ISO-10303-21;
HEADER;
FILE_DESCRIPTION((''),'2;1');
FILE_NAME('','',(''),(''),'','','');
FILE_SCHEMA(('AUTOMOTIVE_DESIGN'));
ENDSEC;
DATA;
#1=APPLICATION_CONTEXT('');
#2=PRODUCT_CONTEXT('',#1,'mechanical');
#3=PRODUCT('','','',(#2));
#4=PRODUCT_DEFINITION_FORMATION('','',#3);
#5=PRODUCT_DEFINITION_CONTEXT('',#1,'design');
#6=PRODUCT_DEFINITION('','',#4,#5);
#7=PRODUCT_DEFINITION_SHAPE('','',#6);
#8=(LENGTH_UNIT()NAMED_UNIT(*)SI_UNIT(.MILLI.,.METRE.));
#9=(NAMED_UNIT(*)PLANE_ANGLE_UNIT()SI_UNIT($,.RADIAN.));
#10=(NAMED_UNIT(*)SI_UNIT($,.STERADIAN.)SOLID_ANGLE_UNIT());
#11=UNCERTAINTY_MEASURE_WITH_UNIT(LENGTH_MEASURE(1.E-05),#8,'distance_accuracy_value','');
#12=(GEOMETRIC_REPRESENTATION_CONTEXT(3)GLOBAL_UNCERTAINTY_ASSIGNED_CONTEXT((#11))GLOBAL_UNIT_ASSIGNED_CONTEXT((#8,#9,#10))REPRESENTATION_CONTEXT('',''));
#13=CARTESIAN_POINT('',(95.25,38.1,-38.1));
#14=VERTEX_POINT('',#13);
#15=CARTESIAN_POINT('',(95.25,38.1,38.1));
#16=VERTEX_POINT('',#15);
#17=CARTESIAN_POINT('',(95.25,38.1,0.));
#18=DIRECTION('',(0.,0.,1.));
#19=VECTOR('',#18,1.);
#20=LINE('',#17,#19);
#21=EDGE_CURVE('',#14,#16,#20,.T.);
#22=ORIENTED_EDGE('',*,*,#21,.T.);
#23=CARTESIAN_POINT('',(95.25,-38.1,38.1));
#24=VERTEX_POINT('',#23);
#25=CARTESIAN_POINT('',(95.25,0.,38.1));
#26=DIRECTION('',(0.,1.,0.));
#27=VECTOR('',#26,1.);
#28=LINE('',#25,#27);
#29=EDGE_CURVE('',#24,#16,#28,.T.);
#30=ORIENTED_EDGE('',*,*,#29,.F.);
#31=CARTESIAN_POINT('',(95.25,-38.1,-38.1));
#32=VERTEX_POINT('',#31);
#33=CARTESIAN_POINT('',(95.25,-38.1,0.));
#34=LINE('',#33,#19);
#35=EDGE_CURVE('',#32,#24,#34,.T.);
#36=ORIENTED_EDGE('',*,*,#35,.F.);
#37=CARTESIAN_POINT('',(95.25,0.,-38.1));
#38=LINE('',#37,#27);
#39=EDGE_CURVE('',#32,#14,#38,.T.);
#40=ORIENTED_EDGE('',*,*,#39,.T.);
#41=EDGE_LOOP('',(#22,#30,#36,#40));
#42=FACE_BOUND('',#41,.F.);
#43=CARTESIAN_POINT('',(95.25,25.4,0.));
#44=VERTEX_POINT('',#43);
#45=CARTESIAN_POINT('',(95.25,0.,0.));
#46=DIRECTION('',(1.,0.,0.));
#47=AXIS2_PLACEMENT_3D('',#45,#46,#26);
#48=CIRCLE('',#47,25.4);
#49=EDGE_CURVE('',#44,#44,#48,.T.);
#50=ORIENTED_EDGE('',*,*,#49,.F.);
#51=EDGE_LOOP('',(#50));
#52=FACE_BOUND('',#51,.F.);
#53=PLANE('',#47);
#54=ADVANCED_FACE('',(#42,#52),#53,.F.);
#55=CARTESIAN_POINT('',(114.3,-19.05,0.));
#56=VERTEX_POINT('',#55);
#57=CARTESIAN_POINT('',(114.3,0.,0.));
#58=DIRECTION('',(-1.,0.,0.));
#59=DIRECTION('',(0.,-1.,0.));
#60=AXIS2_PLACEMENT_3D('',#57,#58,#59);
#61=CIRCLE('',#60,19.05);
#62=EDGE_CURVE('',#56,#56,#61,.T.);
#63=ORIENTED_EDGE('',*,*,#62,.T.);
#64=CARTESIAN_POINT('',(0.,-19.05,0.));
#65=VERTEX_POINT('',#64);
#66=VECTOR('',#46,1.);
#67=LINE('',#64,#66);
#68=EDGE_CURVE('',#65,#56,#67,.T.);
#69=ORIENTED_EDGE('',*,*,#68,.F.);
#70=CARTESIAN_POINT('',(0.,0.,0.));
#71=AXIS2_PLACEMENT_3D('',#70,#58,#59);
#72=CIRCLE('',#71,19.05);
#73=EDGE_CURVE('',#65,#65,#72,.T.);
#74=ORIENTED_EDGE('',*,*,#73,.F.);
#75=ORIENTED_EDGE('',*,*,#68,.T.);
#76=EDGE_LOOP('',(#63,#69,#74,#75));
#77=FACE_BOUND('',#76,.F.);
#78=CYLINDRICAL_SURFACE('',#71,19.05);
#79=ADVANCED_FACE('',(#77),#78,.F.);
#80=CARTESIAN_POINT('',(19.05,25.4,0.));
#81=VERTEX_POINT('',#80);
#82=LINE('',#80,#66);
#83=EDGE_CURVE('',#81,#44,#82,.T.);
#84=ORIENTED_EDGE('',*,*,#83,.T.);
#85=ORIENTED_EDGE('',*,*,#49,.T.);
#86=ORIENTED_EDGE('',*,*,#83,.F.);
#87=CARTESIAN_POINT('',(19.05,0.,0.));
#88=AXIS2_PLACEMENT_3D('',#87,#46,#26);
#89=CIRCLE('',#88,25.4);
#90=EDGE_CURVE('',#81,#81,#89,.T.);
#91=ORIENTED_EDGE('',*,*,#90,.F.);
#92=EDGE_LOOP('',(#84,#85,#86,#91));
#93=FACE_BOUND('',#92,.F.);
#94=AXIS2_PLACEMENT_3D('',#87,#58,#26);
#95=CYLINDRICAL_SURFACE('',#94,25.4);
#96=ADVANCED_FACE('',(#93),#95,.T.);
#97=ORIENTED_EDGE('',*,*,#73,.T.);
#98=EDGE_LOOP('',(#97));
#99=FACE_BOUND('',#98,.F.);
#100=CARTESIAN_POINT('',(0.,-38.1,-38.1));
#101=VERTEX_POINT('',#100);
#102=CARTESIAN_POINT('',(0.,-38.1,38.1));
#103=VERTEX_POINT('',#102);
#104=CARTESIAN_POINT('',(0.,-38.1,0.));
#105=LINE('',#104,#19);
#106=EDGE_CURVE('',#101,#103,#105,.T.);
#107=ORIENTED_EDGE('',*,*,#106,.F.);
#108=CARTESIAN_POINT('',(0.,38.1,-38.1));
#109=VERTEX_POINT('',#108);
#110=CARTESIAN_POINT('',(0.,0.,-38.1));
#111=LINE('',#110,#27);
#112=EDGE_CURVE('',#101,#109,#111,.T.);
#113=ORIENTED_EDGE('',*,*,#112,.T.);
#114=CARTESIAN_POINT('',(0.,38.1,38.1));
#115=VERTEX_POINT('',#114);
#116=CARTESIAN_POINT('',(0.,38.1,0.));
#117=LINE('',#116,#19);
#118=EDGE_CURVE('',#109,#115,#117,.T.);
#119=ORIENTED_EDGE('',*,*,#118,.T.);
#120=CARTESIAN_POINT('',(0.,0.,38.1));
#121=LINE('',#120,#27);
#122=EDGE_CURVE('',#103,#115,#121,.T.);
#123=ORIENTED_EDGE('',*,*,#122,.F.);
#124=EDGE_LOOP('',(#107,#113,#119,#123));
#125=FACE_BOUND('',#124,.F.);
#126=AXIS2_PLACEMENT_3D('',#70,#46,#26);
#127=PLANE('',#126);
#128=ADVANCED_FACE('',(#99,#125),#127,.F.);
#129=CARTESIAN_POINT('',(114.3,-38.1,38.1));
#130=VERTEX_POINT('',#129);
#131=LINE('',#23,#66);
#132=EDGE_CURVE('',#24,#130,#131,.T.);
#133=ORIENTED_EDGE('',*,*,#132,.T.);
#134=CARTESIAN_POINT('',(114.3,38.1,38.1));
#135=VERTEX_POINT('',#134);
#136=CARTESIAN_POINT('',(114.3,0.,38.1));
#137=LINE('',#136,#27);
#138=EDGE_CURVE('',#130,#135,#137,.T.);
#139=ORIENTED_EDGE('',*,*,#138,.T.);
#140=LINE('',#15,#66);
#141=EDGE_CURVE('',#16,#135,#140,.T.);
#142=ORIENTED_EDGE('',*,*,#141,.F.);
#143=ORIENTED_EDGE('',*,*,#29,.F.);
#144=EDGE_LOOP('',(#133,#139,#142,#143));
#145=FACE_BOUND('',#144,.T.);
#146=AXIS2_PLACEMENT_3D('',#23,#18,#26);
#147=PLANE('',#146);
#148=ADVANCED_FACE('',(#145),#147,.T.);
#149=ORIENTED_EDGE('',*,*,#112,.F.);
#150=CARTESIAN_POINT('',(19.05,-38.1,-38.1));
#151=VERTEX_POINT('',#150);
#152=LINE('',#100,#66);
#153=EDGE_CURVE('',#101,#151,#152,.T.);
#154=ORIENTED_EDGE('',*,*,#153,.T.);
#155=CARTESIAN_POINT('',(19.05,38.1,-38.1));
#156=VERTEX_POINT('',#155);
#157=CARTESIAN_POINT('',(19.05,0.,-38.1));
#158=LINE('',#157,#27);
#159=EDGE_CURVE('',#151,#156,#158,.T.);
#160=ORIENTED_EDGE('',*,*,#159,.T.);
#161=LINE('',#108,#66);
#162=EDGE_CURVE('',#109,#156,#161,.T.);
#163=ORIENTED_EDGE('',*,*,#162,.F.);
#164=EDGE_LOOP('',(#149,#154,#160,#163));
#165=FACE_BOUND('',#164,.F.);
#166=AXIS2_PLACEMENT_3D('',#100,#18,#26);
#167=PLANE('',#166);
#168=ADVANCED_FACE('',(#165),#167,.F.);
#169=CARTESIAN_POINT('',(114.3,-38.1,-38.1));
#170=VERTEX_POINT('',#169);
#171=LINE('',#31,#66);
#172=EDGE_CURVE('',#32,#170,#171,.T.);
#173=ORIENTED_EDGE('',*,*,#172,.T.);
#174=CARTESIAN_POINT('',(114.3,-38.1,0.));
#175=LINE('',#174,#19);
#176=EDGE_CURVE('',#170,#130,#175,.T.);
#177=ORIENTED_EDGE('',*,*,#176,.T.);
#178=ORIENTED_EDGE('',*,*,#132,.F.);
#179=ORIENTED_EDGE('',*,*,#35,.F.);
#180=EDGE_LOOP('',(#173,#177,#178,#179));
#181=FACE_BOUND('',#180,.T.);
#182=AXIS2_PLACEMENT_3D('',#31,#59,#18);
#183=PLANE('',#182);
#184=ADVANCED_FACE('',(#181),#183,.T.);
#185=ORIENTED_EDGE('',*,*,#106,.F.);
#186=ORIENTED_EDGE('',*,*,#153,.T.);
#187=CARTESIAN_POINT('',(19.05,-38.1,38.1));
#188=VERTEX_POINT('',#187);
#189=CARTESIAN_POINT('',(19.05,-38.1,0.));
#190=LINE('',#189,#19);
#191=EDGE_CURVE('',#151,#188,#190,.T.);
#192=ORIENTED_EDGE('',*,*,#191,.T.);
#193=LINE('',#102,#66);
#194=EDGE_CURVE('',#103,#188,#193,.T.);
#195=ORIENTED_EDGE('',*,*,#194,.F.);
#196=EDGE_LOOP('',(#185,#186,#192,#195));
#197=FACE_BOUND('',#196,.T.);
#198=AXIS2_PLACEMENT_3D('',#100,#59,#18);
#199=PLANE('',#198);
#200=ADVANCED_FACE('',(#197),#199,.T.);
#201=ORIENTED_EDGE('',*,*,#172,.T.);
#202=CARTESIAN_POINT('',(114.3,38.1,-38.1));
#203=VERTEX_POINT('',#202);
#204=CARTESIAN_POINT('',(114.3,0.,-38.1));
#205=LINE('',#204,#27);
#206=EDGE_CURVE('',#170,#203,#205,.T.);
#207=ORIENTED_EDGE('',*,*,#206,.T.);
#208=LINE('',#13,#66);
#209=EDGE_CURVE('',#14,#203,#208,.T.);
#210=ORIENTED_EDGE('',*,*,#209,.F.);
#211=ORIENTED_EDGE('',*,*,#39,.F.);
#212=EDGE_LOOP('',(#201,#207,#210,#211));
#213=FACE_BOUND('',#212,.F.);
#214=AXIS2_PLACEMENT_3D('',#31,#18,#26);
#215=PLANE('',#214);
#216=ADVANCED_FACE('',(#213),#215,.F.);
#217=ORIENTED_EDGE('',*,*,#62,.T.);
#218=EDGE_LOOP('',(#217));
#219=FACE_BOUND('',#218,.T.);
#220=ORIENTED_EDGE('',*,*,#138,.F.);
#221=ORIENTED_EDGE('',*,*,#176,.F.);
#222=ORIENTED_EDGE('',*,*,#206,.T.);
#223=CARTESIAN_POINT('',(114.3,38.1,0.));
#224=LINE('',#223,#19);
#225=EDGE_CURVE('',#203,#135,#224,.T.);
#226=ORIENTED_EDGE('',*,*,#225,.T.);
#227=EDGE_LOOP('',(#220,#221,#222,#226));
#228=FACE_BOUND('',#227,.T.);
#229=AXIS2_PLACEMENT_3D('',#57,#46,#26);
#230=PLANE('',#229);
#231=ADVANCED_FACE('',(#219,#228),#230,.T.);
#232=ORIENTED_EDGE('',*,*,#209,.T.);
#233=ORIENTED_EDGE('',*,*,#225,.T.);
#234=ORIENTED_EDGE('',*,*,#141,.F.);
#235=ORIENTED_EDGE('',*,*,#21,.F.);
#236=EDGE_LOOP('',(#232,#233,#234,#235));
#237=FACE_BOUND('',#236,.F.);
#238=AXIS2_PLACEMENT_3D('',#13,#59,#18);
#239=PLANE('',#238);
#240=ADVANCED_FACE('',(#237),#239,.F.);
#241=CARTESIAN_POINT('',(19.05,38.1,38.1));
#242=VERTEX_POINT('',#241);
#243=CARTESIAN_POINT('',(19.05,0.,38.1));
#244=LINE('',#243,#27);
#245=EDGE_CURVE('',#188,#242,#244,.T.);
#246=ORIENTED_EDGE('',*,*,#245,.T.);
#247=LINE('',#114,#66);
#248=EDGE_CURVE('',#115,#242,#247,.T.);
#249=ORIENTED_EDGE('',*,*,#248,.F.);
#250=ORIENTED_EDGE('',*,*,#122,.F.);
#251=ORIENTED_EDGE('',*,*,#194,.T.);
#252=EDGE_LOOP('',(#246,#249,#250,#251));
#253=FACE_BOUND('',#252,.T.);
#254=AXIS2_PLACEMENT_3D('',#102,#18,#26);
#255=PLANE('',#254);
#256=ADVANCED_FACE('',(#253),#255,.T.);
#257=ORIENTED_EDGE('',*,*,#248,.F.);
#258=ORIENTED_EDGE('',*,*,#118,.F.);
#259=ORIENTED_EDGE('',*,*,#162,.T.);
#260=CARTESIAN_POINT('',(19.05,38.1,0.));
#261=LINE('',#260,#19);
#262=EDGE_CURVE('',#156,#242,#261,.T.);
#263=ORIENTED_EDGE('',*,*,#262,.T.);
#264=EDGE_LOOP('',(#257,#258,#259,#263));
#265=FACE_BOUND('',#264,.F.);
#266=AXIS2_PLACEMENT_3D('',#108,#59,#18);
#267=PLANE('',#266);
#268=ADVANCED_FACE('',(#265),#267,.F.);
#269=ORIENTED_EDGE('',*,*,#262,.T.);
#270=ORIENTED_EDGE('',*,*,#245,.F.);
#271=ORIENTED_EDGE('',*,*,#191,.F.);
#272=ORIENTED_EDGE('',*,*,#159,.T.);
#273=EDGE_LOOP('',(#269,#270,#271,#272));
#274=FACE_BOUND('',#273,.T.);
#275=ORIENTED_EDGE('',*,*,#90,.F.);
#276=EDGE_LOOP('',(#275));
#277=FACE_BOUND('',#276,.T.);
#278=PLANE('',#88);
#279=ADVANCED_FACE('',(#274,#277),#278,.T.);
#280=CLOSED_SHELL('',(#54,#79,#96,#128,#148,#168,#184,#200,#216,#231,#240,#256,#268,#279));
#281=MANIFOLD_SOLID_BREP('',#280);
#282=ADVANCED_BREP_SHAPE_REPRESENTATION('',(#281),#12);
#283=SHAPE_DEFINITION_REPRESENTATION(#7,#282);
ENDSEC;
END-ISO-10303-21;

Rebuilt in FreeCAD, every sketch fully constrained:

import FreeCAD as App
import Part
import Sketcher
Q = App.Units.Quantity

doc = App.newDocument("Part")
body = doc.addObject("PartDesign::Body", "Body")

sketch1 = body.newObject("Sketcher::SketchObject", "Sketch")
sketch1.AttachmentSupport = (doc.getObject("YZ_Plane"), [""])
sketch1.MapMode = "FlatFace"
sketch1.addGeometry(Part.LineSegment(App.Vector(-38.1, 38.1, 0), App.Vector(-38.1, -38.1, 0)), False)
sketch1.addGeometry(Part.LineSegment(App.Vector(-38.1, -38.1, 0), App.Vector(38.1, -38.1, 0)), False)
sketch1.addGeometry(Part.LineSegment(App.Vector(38.1, -38.1, 0), App.Vector(38.1, 38.1, 0)), False)
sketch1.addGeometry(Part.LineSegment(App.Vector(38.1, 38.1, 0), App.Vector(-38.1, 38.1, 0)), False)
sketch1.addConstraint(Sketcher.Constraint("Coincident", 0, 2, 1, 1))
sketch1.addConstraint(Sketcher.Constraint("Coincident", 1, 2, 2, 1))
sketch1.addConstraint(Sketcher.Constraint("Coincident", 2, 2, 3, 1))
sketch1.addConstraint(Sketcher.Constraint("Coincident", 3, 2, 0, 1))
sketch1.addConstraint(Sketcher.Constraint("Vertical", 0))
sketch1.addConstraint(Sketcher.Constraint("Horizontal", 1))
sketch1.addConstraint(Sketcher.Constraint("Vertical", 2))
sketch1.addConstraint(Sketcher.Constraint("Horizontal", 3))
sketch1.addConstraint(Sketcher.Constraint("Symmetric", 0, 2, 2, 2, -1, 1))
sketch1.addConstraint(Sketcher.Constraint("Equal", 3, 0))
sketch1.addConstraint(Sketcher.Constraint("DistanceX", 1, 1, 1, 2, Q("3 in")))
pad1 = body.newObject("PartDesign::Pad", "Pad")
pad1.Profile = sketch1
pad1.Length = Q("0.75 in")

sketch2 = body.newObject("Sketcher::SketchObject", "Sketch001")
sketch2.AttachmentSupport = (doc.getObject("YZ_Plane"), [""])
sketch2.MapMode = "FlatFace"
sketch2.AttachmentOffset = App.Placement(App.Vector(0, 0, 0.75 * 25.4), App.Rotation())
sketch2.addGeometry(Part.Circle(App.Vector(0, 0, 0), App.Vector(0, 0, 1), 25.4), False)
sketch2.addConstraint(Sketcher.Constraint("Coincident", 0, 3, -1, 1))
sketch2.addConstraint(Sketcher.Constraint("Diameter", 0, Q("2 in")))
pad2 = body.newObject("PartDesign::Pad", "Pad001")
pad2.Profile = sketch2
pad2.Length = Q("3 in")

sketch3 = body.newObject("Sketcher::SketchObject", "Sketch002")
sketch3.AttachmentSupport = (doc.getObject("YZ_Plane"), [""])
sketch3.MapMode = "FlatFace"
sketch3.AttachmentOffset = App.Placement(App.Vector(0, 0, 3.75 * 25.4), App.Rotation())
sketch3.addGeometry(Part.LineSegment(App.Vector(-38.1, 38.1, 0), App.Vector(-38.1, -38.1, 0)), False)
sketch3.addGeometry(Part.LineSegment(App.Vector(-38.1, -38.1, 0), App.Vector(38.1, -38.1, 0)), False)
sketch3.addGeometry(Part.LineSegment(App.Vector(38.1, -38.1, 0), App.Vector(38.1, 38.1, 0)), False)
sketch3.addGeometry(Part.LineSegment(App.Vector(38.1, 38.1, 0), App.Vector(-38.1, 38.1, 0)), False)
sketch3.addConstraint(Sketcher.Constraint("Coincident", 0, 2, 1, 1))
sketch3.addConstraint(Sketcher.Constraint("Coincident", 1, 2, 2, 1))
sketch3.addConstraint(Sketcher.Constraint("Coincident", 2, 2, 3, 1))
sketch3.addConstraint(Sketcher.Constraint("Coincident", 3, 2, 0, 1))
sketch3.addConstraint(Sketcher.Constraint("Vertical", 0))
sketch3.addConstraint(Sketcher.Constraint("Horizontal", 1))
sketch3.addConstraint(Sketcher.Constraint("Vertical", 2))
sketch3.addConstraint(Sketcher.Constraint("Horizontal", 3))
sketch3.addConstraint(Sketcher.Constraint("Symmetric", 0, 2, 2, 2, -1, 1))
sketch3.addConstraint(Sketcher.Constraint("Equal", 3, 0))
sketch3.addConstraint(Sketcher.Constraint("DistanceX", 1, 1, 1, 2, Q("3 in")))
pad3 = body.newObject("PartDesign::Pad", "Pad002")
pad3.Profile = sketch3
pad3.Length = Q("0.75 in")

sketch4 = body.newObject("Sketcher::SketchObject", "Sketch003")
sketch4.AttachmentSupport = (doc.getObject("YZ_Plane"), [""])
sketch4.MapMode = "FlatFace"
sketch4.addGeometry(Part.Circle(App.Vector(0, 0, 0), App.Vector(0, 0, 1), 19.05), False)
sketch4.addConstraint(Sketcher.Constraint("Coincident", 0, 3, -1, 1))
sketch4.addConstraint(Sketcher.Constraint("Diameter", 0, Q("1.5 in")))
pocket1 = body.newObject("PartDesign::Pocket", "Pocket")
pocket1.Profile = sketch4
pocket1.Length = Q("4.5 in")
pocket1.Reversed = True

doc.recompute()
